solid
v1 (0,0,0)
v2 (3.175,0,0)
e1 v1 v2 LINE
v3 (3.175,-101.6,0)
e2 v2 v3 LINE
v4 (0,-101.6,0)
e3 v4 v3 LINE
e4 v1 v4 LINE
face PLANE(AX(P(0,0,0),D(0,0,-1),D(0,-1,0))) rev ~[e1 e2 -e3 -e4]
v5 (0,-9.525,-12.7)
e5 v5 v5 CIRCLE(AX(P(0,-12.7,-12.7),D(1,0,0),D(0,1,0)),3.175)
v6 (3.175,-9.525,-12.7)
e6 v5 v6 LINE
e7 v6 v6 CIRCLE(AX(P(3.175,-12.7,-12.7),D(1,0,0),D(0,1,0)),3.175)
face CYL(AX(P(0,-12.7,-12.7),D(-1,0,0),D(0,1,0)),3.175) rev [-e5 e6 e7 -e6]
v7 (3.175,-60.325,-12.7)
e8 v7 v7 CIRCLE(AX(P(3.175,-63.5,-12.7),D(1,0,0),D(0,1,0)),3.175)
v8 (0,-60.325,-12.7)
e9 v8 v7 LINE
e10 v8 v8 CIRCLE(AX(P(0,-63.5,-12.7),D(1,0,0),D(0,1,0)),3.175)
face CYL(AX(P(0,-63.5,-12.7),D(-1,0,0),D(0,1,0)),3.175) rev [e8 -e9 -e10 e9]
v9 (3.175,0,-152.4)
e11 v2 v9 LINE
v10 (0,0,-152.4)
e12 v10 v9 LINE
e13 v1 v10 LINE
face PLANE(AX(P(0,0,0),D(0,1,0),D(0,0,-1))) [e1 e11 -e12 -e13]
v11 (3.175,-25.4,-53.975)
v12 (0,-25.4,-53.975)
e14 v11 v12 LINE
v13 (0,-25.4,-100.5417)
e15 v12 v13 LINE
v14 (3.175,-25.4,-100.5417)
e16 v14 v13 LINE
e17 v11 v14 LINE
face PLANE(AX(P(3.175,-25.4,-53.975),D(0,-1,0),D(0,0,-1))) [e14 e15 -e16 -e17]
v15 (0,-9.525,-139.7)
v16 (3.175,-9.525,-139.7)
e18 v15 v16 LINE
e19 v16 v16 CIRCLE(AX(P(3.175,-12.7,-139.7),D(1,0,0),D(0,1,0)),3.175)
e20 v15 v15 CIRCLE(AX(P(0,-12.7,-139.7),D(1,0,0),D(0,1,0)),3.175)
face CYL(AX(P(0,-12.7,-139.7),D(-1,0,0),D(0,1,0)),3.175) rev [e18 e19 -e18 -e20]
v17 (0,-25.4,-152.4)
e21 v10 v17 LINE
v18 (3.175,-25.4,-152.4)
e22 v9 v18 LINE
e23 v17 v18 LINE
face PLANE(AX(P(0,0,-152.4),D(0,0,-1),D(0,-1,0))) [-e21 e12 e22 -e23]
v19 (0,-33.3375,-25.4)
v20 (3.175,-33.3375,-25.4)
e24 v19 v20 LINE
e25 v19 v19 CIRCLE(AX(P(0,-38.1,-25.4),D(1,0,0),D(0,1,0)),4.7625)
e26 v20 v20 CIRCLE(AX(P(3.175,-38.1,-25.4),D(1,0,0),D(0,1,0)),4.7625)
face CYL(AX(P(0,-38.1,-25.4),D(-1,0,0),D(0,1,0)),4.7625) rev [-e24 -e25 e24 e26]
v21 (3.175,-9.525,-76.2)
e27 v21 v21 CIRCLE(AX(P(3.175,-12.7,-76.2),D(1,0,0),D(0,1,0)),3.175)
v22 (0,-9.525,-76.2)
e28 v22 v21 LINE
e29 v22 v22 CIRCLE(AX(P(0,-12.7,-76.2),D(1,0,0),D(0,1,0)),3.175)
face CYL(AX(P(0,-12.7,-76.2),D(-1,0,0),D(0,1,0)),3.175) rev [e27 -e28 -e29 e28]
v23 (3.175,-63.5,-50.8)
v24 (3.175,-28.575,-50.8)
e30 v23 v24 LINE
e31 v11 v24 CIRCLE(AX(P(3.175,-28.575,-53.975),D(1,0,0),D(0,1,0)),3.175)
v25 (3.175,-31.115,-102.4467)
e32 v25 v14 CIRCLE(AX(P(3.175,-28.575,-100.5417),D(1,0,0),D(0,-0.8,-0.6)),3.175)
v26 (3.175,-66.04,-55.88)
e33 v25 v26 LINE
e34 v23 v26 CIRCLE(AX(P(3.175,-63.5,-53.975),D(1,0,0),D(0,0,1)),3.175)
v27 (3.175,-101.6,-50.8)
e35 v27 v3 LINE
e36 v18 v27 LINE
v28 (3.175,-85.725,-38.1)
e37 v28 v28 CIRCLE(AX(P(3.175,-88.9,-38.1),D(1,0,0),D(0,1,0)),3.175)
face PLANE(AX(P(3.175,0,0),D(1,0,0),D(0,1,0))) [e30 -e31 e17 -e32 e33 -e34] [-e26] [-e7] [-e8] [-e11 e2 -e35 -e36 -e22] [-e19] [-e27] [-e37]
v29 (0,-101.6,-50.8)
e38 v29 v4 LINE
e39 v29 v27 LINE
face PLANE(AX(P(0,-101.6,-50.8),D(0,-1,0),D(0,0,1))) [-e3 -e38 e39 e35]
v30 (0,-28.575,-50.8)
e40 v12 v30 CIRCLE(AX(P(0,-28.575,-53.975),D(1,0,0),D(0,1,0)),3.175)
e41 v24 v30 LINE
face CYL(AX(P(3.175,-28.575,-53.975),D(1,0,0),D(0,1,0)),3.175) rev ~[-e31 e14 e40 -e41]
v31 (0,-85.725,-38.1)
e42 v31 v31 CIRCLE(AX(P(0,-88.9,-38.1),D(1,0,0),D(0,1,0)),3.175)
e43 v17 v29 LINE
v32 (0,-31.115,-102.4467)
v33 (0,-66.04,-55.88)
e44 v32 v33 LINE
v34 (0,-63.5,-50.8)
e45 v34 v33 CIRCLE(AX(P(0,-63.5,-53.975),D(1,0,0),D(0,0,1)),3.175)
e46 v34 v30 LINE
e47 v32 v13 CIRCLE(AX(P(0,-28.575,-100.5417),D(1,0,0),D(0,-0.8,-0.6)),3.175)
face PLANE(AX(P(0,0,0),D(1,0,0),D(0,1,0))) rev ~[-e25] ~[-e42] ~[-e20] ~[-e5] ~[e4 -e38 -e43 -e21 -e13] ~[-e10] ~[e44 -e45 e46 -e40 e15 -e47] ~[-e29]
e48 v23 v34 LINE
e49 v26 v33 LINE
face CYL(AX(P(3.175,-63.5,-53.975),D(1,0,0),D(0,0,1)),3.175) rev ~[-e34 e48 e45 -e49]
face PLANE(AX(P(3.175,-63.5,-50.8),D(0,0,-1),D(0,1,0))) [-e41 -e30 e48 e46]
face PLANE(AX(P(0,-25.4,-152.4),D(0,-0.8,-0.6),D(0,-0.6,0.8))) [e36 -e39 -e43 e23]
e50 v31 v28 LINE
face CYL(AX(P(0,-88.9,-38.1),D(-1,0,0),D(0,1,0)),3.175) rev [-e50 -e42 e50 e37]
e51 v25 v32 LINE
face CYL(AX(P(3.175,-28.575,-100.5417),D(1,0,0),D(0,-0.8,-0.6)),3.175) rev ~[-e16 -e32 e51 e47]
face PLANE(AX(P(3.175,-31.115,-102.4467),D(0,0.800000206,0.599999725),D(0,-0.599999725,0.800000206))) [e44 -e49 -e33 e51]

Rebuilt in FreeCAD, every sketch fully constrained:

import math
import FreeCAD as App
import Part
import Sketcher

V = App.Vector
Q = App.Units.Quantity


def add_polygon(sketch, points):
    """Adds a closed chain of lines whose ends are joined by coincident constraints."""
    first, n = sketch.GeometryCount, len(points)
    for a, b in zip(points, points[1:] + points[:1]):
        sketch.addGeometry(Part.LineSegment(App.Vector(*a, 0), App.Vector(*b, 0)), False)
    for i in range(n):
        sketch.addConstraint(Sketcher.Constraint("Coincident", first + i, 2, first + (i + 1) % n, 1))

doc = App.newDocument("Part")
params = doc.addObject("Spreadsheet::Sheet", "Params")
for row, (alias, value) in enumerate([
    ("sketch1_diameter", "0.25 in"),
    ("sketch1_width", "4 in"),
    ("sketch1_width2", "1 in"),
    ("sketch1_height", "6 in"),
    ("sketch1_height2", "2 in"),
    ("pad1_length", "0.125 in"),
    ("sketch2_radius", "0.125 in"),
    ("pocket1_length", "0.125 in"),
], start=1):
    params.set(f"A{row}", alias)
    params.set(f"B{row}", "=" + value)
    params.setAlias(f"B{row}", alias)

body = doc.addObject("PartDesign::Body", "Body")

# Sketch on YZ plane
sketch1 = body.newObject("Sketcher::SketchObject", "Sketch")
sketch1.AttachmentSupport = (doc.getObject("YZ_Plane"), [""])
sketch1.MapMode = "FlatFace"
add_polygon(sketch1, [(0, -152.4), (0, 0), (-101.6, 0), (-101.6, -50.8), (-25.4, -152.4)])  # lines 0-4
sketch1.addGeometry(Part.Circle(V(-12.7, -139.7, 0), V(0, 0, 1), 3.2), False)  # 5
sketch1.addGeometry(Part.Circle(V(-88.9, -38.1, 0), V(0, 0, 1), 3.2), False)  # 6
sketch1.addGeometry(Part.Circle(V(-63.5, -12.7, 0), V(0, 0, 1), 3.2), False)  # 7
sketch1.addGeometry(Part.Circle(V(-12.7, -76.2, 0), V(0, 0, 1), 3.2), False)  # 8
sketch1.addGeometry(Part.Circle(V(-38.1, -25.4, 0), V(0, 0, 1), 4.8), False)  # 9
sketch1.addGeometry(Part.Circle(V(-12.7, -12.7, 0), V(0, 0, 1), 3.2), False)  # 10
sketch1.addConstraint([
    Sketcher.Constraint("Vertical", 0),
    Sketcher.Constraint("Horizontal", 1),
    Sketcher.Constraint("Vertical", 2),
    Sketcher.Constraint("Horizontal", 4),
    Sketcher.Constraint("Coincident", 0, 2, -1, 1),
    Sketcher.Constraint("Equal", 5, 6),
    Sketcher.Constraint("Equal", 6, 7),
    Sketcher.Constraint("Equal", 7, 8),
    Sketcher.Constraint("Equal", 8, 10),
    Sketcher.Constraint("Horizontal", 7, 3, 10, 3),
    Sketcher.Constraint("Vertical", 5, 3, 8, 3),
    Sketcher.Constraint("Vertical", 8, 3, 10, 3),
    Sketcher.Constraint("Diameter", 5, Q("0.25 in")),
    Sketcher.Constraint("DistanceX", 1, 2, 1, 1, Q("4 in")),
    Sketcher.Constraint("DistanceX", 4, 1, 4, 2, Q("1 in")),
    Sketcher.Constraint("DistanceY", 0, 1, 0, 2, Q("6 in")),
    Sketcher.Constraint("DistanceY", 2, 2, 2, 1, Q("2 in")),
    Sketcher.Constraint("Diameter", 9, Q("0.375 in")),
    Sketcher.Constraint("DistanceY", 9, 3, -1, 1, Q("1 in")),
    Sketcher.Constraint("DistanceY", 5, 3, 6, 3, Q("4 in")),
    Sketcher.Constraint("DistanceX", 6, 3, 7, 3, Q("1 in")),
    Sketcher.Constraint("DistanceY", 6, 3, 7, 3, Q("1 in")),
    Sketcher.Constraint("DistanceX", 7, 3, 5, 3, Q("2 in")),
    Sketcher.Constraint("DistanceX", 7, 3, 9, 3, Q("1 in")),
    Sketcher.Constraint("DistanceY", 8, 3, 9, 3, Q("2 in")),
    Sketcher.Constraint("DistanceX", 5, 3, -1, 1, Q("0.5 in")),
    Sketcher.Constraint("DistanceY", 7, 3, -1, 1, Q("0.5 in")),
])
sketch1.setExpression("Constraints[17]", "Params.sketch1_diameter")
sketch1.setExpression("Constraints[18]", "Params.sketch1_width")
sketch1.setExpression("Constraints[19]", "Params.sketch1_width2")
sketch1.setExpression("Constraints[20]", "Params.sketch1_height")
sketch1.setExpression("Constraints[21]", "Params.sketch1_height2")
pad1 = body.newObject("PartDesign::Pad", "Pad")
pad1.Profile = sketch1
pad1.setExpression("Length", "Params.pad1_length")

# Sketch on YZ plane
sketch2 = body.newObject("Sketcher::SketchObject", "Sketch001")
sketch2.AttachmentSupport = (doc.getObject("YZ_Plane"), [""])
sketch2.MapMode = "FlatFace"
sketch2.AttachmentOffset = App.Placement(V(0, 0, 0.125 * 25.4), App.Rotation())
sketch2.addGeometry([
    Part.LineSegment(V(-28.6, -50.8, 0), V(-63.5, -50.8, 0)),  # 0
    Part.ArcOfCircle(Part.Circle(V(-63.5, -54, 0), V(0, 0, 1), 3.2), math.radians(90), math.radians(217)),  # 1
    Part.LineSegment(V(-66, -55.9, 0), V(-31.1, -102.4, 0)),  # 2
    Part.ArcOfCircle(Part.Circle(V(-28.6, -100.5, 0), V(0, 0, 1), 3.2), math.radians(-143), math.radians(0)),  # 3
    Part.LineSegment(V(-25.4, -100.5, 0), V(-25.4, -54, 0)),  # 4
    Part.ArcOfCircle(Part.Circle(V(-28.6, -54, 0), V(0, 0, 1), 3.2), math.radians(0), math.radians(90)),  # 5
], False)
sketch2.addConstraint([
    Sketcher.Constraint("Tangent", 0, 2, 1, 1),
    Sketcher.Constraint("Tangent", 1, 2, 2, 1),
    Sketcher.Constraint("Tangent", 2, 2, 3, 1),
    Sketcher.Constraint("Tangent", 3, 2, 4, 1),
    Sketcher.Constraint("Tangent", 4, 2, 5, 1),
    Sketcher.Constraint("Tangent", 5, 2, 0, 1),
    Sketcher.Constraint("Horizontal", 0),
    Sketcher.Constraint("Vertical", 4),
    Sketcher.Constraint("Equal", 1, 3),
    Sketcher.Constraint("Equal", 3, 5),
    Sketcher.Constraint("DistanceY", 0, 2, -1, 1, Q("2 in")),
    Sketcher.Constraint("DistanceX", 3, 2, -1, 1, Q("1 in")),
    Sketcher.Constraint("Radius", 1, Q("0.125 in")),
    Sketcher.Constraint("DistanceX", 1, 3, -1, 1, Q("2.5 in")),
    Sketcher.Constraint("DistanceX", 1, 2, -1, 1, Q("2.6 in")),
])
sketch2.setExpression("Constraints[12]", "Params.sketch2_radius")
pocket1 = body.newObject("PartDesign::Pocket", "Pocket")
pocket1.Profile = sketch2
pocket1.setExpression("Length", "Params.pocket1_length")

doc.recompute()
